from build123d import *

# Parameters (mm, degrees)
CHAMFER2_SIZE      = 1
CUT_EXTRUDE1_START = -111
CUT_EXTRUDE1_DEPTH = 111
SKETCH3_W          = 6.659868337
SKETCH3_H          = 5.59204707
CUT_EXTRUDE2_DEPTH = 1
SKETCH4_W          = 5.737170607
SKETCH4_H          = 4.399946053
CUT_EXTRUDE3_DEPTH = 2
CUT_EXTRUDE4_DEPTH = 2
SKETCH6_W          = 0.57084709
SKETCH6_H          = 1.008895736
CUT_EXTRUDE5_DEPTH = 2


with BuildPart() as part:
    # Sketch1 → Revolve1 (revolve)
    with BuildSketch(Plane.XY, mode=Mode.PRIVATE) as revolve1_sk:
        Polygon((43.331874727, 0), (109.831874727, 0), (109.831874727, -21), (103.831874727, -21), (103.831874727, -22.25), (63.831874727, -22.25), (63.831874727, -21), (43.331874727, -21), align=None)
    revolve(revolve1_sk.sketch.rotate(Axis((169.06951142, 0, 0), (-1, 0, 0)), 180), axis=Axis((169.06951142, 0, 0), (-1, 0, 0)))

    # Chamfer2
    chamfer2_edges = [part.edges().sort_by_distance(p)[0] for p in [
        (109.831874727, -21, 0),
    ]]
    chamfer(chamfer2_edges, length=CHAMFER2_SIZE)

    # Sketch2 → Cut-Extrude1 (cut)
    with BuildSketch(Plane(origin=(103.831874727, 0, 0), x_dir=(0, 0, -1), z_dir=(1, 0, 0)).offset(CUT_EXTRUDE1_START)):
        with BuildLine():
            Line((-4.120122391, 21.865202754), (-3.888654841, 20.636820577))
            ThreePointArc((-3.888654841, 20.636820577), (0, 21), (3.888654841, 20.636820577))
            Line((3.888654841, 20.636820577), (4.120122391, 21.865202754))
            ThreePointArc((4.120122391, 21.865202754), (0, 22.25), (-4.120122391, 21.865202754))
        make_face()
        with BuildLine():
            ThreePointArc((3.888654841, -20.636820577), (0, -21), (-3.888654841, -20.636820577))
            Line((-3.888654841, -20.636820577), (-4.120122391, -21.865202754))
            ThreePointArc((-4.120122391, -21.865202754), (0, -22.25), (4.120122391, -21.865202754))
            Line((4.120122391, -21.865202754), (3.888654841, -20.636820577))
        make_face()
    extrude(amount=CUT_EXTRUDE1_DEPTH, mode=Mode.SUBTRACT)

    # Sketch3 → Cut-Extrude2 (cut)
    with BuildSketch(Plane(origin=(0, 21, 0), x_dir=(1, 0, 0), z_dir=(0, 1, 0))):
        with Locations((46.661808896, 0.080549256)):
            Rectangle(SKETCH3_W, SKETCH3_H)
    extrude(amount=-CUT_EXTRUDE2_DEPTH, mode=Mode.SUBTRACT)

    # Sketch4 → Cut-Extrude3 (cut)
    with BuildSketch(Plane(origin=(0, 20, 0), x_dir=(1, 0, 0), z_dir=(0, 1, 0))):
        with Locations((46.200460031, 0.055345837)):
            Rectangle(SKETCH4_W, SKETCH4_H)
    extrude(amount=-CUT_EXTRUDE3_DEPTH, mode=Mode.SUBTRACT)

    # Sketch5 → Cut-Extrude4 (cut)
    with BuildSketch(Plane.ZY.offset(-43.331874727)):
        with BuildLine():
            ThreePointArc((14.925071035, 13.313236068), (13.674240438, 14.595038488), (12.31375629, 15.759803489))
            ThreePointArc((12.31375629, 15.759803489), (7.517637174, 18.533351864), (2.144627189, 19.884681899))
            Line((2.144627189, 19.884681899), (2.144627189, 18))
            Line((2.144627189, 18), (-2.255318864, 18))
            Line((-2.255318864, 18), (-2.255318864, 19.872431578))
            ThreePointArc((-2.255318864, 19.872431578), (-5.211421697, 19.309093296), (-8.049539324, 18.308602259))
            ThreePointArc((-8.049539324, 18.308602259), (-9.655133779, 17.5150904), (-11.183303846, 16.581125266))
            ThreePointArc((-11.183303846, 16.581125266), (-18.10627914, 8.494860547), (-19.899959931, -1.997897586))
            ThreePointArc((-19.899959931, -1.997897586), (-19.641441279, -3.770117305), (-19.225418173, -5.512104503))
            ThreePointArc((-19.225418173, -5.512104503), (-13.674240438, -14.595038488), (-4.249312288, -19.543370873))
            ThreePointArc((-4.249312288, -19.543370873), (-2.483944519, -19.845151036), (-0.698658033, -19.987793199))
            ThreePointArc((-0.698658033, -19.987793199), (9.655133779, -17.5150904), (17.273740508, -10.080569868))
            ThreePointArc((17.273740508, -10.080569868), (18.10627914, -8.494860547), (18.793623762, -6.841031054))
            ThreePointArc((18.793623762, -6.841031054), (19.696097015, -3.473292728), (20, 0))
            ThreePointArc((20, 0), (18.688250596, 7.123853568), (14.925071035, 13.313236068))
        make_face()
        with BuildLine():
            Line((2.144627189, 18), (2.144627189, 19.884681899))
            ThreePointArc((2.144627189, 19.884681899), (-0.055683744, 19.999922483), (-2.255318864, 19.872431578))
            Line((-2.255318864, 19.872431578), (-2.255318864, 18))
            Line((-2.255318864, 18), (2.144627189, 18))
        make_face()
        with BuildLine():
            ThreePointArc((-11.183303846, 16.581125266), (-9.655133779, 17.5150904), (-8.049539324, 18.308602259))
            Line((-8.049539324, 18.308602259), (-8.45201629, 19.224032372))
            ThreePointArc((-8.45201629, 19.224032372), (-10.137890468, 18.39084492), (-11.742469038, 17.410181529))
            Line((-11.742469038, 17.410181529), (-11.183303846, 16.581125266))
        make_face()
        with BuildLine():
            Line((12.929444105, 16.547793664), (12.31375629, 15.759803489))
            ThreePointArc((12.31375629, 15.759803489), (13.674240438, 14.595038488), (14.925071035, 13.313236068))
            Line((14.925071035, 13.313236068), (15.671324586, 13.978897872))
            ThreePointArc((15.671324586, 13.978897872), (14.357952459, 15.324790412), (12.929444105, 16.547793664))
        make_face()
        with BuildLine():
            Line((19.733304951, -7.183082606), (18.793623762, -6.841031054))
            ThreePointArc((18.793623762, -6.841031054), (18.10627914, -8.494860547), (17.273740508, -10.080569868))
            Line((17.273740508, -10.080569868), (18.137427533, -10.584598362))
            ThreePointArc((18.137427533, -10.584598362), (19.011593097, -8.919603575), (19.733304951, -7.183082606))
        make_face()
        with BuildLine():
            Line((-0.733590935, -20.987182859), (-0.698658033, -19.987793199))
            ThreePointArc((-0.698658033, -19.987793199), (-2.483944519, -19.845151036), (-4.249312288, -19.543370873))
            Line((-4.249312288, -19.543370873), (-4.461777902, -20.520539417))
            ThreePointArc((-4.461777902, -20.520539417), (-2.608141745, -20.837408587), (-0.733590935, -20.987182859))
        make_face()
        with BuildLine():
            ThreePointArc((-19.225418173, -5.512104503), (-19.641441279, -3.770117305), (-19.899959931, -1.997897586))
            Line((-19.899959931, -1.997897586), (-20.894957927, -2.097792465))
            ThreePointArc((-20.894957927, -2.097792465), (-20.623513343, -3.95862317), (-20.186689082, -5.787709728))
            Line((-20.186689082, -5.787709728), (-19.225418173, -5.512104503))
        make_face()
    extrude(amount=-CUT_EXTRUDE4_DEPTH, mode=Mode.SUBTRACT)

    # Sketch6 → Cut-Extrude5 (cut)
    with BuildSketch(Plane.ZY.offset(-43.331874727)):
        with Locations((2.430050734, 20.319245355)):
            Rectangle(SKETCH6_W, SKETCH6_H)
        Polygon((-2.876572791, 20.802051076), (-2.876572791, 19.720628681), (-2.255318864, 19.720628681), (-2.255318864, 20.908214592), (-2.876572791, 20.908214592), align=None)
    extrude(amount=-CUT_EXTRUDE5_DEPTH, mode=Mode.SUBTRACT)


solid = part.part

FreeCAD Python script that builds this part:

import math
import FreeCAD as App
import Part
import Sketcher

V = App.Vector


def edges_at(feature, points):
    """Names of the edges that pass closest to the given points."""
    edges = feature.Shape.Edges
    near = lambda p: min(range(len(edges)), key=lambda i: edges[i].distToShape(Part.Vertex(*p))[0])
    return sorted({f"Edge{near(p) + 1}" for p in points})

doc = App.newDocument("Part")
body = doc.addObject("PartDesign::Body", "Body")

# Sketch on XY plane
sketch1 = body.newObject("Sketcher::SketchObject", "Sketch")
sketch1.AttachmentSupport = (doc.getObject("XY_Plane"), [""])
sketch1.MapMode = "FlatFace"
sketch1.addGeometry(Part.LineSegment(V(109.8, 0, 0), V(43.3, 0, 0)), False)
sketch1.addGeometry(Part.LineSegment(V(43.3, 0, 0), V(43.3, -21, 0)), False)
sketch1.addGeometry(Part.LineSegment(V(43.3, -21, 0), V(63.8, -21, 0)), False)
sketch1.addGeometry(Part.LineSegment(V(63.8, -21, 0), V(63.8, -22.2, 0)), False)
sketch1.addGeometry(Part.LineSegment(V(63.8, -22.2, 0), V(103.8, -22.2, 0)), False)
sketch1.addGeometry(Part.LineSegment(V(103.8, -22.2, 0), V(103.8, -21, 0)), False)
sketch1.addGeometry(Part.LineSegment(V(103.8, -21, 0), V(109.8, -21, 0)), False)
sketch1.addGeometry(Part.LineSegment(V(109.8, -21, 0), V(109.8, 0, 0)), False)
sketch1.addConstraint(Sketcher.Constraint("Coincident", 0, 2, 1, 1))
sketch1.addConstraint(Sketcher.Constraint("Coincident", 1, 2, 2, 1))
sketch1.addConstraint(Sketcher.Constraint("Coincident", 2, 2, 3, 1))
sketch1.addConstraint(Sketcher.Constraint("Coincident", 3, 2, 4, 1))
sketch1.addConstraint(Sketcher.Constraint("Coincident", 4, 2, 5, 1))
sketch1.addConstraint(Sketcher.Constraint("Coincident", 5, 2, 6, 1))
sketch1.addConstraint(Sketcher.Constraint("Coincident", 6, 2, 7, 1))
sketch1.addConstraint(Sketcher.Constraint("Coincident", 7, 2, 0, 1))
sketch1.addConstraint(Sketcher.Constraint("Horizontal", 0))
sketch1.addConstraint(Sketcher.Constraint("Vertical", 1))
sketch1.addConstraint(Sketcher.Constraint("Horizontal", 2))
sketch1.addConstraint(Sketcher.Constraint("Vertical", 3))
sketch1.addConstraint(Sketcher.Constraint("Horizontal", 4))
sketch1.addConstraint(Sketcher.Constraint("Vertical", 5))
sketch1.addConstraint(Sketcher.Constraint("Horizontal", 6))
sketch1.addConstraint(Sketcher.Constraint("Vertical", 7))
sketch1.addConstraint(Sketcher.Constraint("PointOnObject", 0, 2, -1))
sketch1.addConstraint(Sketcher.Constraint("Horizontal", 2, 2, 5, 2))
sketch1.addConstraint(Sketcher.Constraint("DistanceX", 4, 1, 4, 2, 40.0))
sketch1.addConstraint(Sketcher.Constraint("DistanceX", 6, 1, 6, 2, 6.0))
sketch1.addConstraint(Sketcher.Constraint("DistanceY", 1, 2, 1, 1, 21.0))
sketch1.addConstraint(Sketcher.Constraint("DistanceX", 0, 2, 0, 1, 66.5))
sketch1.addConstraint(Sketcher.Constraint("DistanceY", 3, 2, 3, 1, 1.25))
sketch1.addConstraint(Sketcher.Constraint("DistanceX", -1, 1, 0, 2, 43.331875))
revolution = body.newObject("PartDesign::Revolution", "Revolution")
revolution.Profile = sketch1
revolution.ReferenceAxis = (sketch1, ["H_Axis"])
revolution.Angle = 360
doc.recompute()

chamfer = body.newObject("PartDesign::Chamfer", "Chamfer")
chamfer.Base = (revolution, edges_at(revolution, [(109.832, -21, 0)]))
chamfer.Size = 1

# Sketch on YZ plane
sketch2 = body.newObject("Sketcher::SketchObject", "Sketch001")
sketch2.AttachmentSupport = (doc.getObject("YZ_Plane"), [""])
sketch2.MapMode = "FlatFace"
sketch2.AttachmentOffset = App.Placement(V(0, 0, -7.168125), App.Rotation())
sketch2.addGeometry(Part.LineSegment(V(21.9, 4.1, 0), V(20.6, 3.9, 0)), False)
sketch2.addGeometry(Part.ArcOfCircle(Part.Circle(V(0, 0, 0), V(0, 0, 1), 21), math.radians(-11), math.radians(11)), False)
sketch2.addGeometry(Part.LineSegment(V(20.6, -3.9, 0), V(21.9, -4.1, 0)), False)
sketch2.addGeometry(Part.ArcOfCircle(Part.Circle(V(0, 0, 0), V(0, 0, 1), 22.2), math.radians(-11), math.radians(11)), False)
sketch2.addGeometry(Part.ArcOfCircle(Part.Circle(V(0, 0, 0), V(0, 0, 1), 21), math.radians(169), math.radians(191)), False)
sketch2.addGeometry(Part.LineSegment(V(-20.6, 3.9, 0), V(-21.9, 4.1, 0)), False)
sketch2.addGeometry(Part.ArcOfCircle(Part.Circle(V(0, 0, 0), V(0, 0, 1), 22.2), math.radians(169), math.radians(191)), False)
sketch2.addGeometry(Part.LineSegment(V(-21.9, -4.1, 0), V(-20.6, -3.9, 0)), False)
sketch2.addConstraint(Sketcher.Constraint("Coincident", 0, 2, 1, 2))
sketch2.addConstraint(Sketcher.Constraint("Coincident", 1, 1, 2, 1))
sketch2.addConstraint(Sketcher.Constraint("Coincident", 2, 2, 3, 1))
sketch2.addConstraint(Sketcher.Constraint("Coincident", 3, 2, 0, 1))
sketch2.addConstraint(Sketcher.Constraint("Coincident", 4, 1, 5, 1))
sketch2.addConstraint(Sketcher.Constraint("Coincident", 5, 2, 6, 1))
sketch2.addConstraint(Sketcher.Constraint("Coincident", 6, 2, 7, 1))
sketch2.addConstraint(Sketcher.Constraint("Coincident", 7, 2, 4, 2))
sketch2.addConstraint(Sketcher.Constraint("Coincident", 1, 3, -1, 1))
sketch2.addConstraint(Sketcher.Constraint("Coincident", 3, 3, -1, 1))
sketch2.addConstraint(Sketcher.Constraint("Coincident", 4, 3, -1, 1))
sketch2.addConstraint(Sketcher.Constraint("Coincident", 6, 3, -1, 1))
sketch2.addConstraint(Sketcher.Constraint("Equal", 1, 4))
sketch2.addConstraint(Sketcher.Constraint("Equal", 3, 6))
sketch2.addConstraint(Sketcher.Constraint("Parallel", 2, 5))
sketch2.addConstraint(Sketcher.Constraint("Parallel", 0, 7))
sketch2.addConstraint(Sketcher.Constraint("Horizontal", 0, 2, 4, 1))
sketch2.addConstraint(Sketcher.Constraint("Horizontal", 3, 2, 5, 2))
sketch2.addConstraint(Sketcher.Constraint("Horizontal", 2, 2, 6, 2))
sketch2.addConstraint(Sketcher.Constraint("Vertical", 0, 2, 1, 1))
sketch2.addConstraint(Sketcher.Constraint("Radius", 1, 21.0))
sketch2.addConstraint(Sketcher.Constraint("Radius", 3, 22.25))
sketch2.addConstraint(Sketcher.Constraint("DistanceX", -1, 1, 0, 2, 20.636821))
sketch2.addConstraint(Sketcher.Constraint("DistanceX", -1, 1, 2, 2, 21.865203))
pocket1 = body.newObject("PartDesign::Pocket", "Pocket")
pocket1.Profile = sketch2
pocket1.Length = 111
pocket1.Reversed = True

# Sketch on XZ plane
sketch3 = body.newObject("Sketcher::SketchObject", "Sketch002")
sketch3.AttachmentSupport = (doc.getObject("XZ_Plane"), [""])
sketch3.MapMode = "FlatFace"
sketch3.AttachmentOffset = App.Placement(V(0, 0, -21), App.Rotation())
sketch3.addGeometry(Part.LineSegment(V(43, -3, 0), V(43, 3, 0)), False)
sketch3.addGeometry(Part.LineSegment(V(43, 3, 0), V(50, 3, 0)), False)
sketch3.addGeometry(Part.LineSegment(V(50, 3, 0), V(50, -3, 0)), False)
sketch3.addGeometry(Part.LineSegment(V(50, -3, 0), V(43, -3, 0)), False)
sketch3.addConstraint(Sketcher.Constraint("Coincident", 0, 2, 1, 1))
sketch3.addConstraint(Sketcher.Constraint("Coincident", 1, 2, 2, 1))
sketch3.addConstraint(Sketcher.Constraint("Coincident", 2, 2, 3, 1))
sketch3.addConstraint(Sketcher.Constraint("Coincident", 3, 2, 0, 1))
sketch3.addConstraint(Sketcher.Constraint("Vertical", 0))
sketch3.addConstraint(Sketcher.Constraint("Horizontal", 1))
sketch3.addConstraint(Sketcher.Constraint("Vertical", 2))
sketch3.addConstraint(Sketcher.Constraint("Horizontal", 3))
sketch3.addConstraint(Sketcher.Constraint("DistanceX", 1, 1, 1, 2, 6.659868))
sketch3.addConstraint(Sketcher.Constraint("DistanceY", 0, 1, 0, 2, 5.592047))
sketch3.addConstraint(Sketcher.Constraint("DistanceX", -1, 1, 0, 2, 43.331875))
sketch3.addConstraint(Sketcher.Constraint("DistanceY", -1, 1, 0, 2, 2.715474))
pocket2 = body.newObject("PartDesign::Pocket", "Pocket001")
pocket2.Profile = sketch3
pocket2.Length = 1
pocket2.Reversed = True

# Sketch on XZ plane
sketch4 = body.newObject("Sketcher::SketchObject", "Sketch003")
sketch4.AttachmentSupport = (doc.getObject("XZ_Plane"), [""])
sketch4.MapMode = "FlatFace"
sketch4.AttachmentOffset = App.Placement(V(0, 0, -20), App.Rotation())
sketch4.addGeometry(Part.LineSegment(V(43.3, -2.3, 0), V(43.3, 2.1, 0)), False)
sketch4.addGeometry(Part.LineSegment(V(43.3, 2.1, 0), V(49.1, 2.1, 0)), False)
sketch4.addGeometry(Part.LineSegment(V(49.1, 2.1, 0), V(49.1, -2.3, 0)), False)
sketch4.addGeometry(Part.LineSegment(V(49.1, -2.3, 0), V(43.3, -2.3, 0)), False)
sketch4.addConstraint(Sketcher.Constraint("Coincident", 0, 2, 1, 1))
sketch4.addConstraint(Sketcher.Constraint("Coincident", 1, 2, 2, 1))
sketch4.addConstraint(Sketcher.Constraint("Coincident", 2, 2, 3, 1))
sketch4.addConstraint(Sketcher.Constraint("Coincident", 3, 2, 0, 1))
sketch4.addConstraint(Sketcher.Constraint("Vertical", 0))
sketch4.addConstraint(Sketcher.Constraint("Horizontal", 1))
sketch4.addConstraint(Sketcher.Constraint("Vertical", 2))
sketch4.addConstraint(Sketcher.Constraint("Horizontal", 3))
sketch4.addConstraint(Sketcher.Constraint("DistanceX", 1, 1, 1, 2, 5.737171))
sketch4.addConstraint(Sketcher.Constraint("DistanceY", 0, 1, 0, 2, 4.399946))
sketch4.addConstraint(Sketcher.Constraint("DistanceY", 2, 2, -1, 1, 2.255319))
sketch4.addConstraint(Sketcher.Constraint("DistanceX", -1, 1, 0, 2, 43.331875))
pocket3 = body.newObject("PartDesign::Pocket", "Pocket002")
pocket3.Profile = sketch4
pocket3.Length = 2
pocket3.Reversed = True

# Sketch on YZ plane
sketch5 = body.newObject("Sketcher::SketchObject", "Sketch004")
sketch5.AttachmentSupport = (doc.getObject("YZ_Plane"), [""])
sketch5.MapMode = "FlatFace"
sketch5.AttachmentOffset = App.Placement(V(0, 0, 43.331875), App.Rotation())
sketch5.addGeometry(Part.ArcOfCircle(Part.Circle(V(0, 0, 0), V(0, 0, 1), 20), math.radians(6), math.radians(38)), False)
sketch5.addGeometry(Part.ArcOfCircle(Part.Circle(V(0, 0, 0), V(0, 0, 1), 20), math.radians(-6.47), math.radians(6.16)), False)
sketch5.addGeometry(Part.ArcOfCircle(Part.Circle(V(0, 0, 0), V(0, 0, 1), 20), math.radians(-23.73), math.radians(-6.47)), False)
sketch5.addGeometry(Part.LineSegment(V(18.3, -8, 0), V(19.2, -8.5, 0)), False)
sketch5.addGeometry(Part.ArcOfCircle(Part.Circle(V(0, 0, 0), V(0, 0, 1), 21), math.radians(-34), math.radians(-23.73)), False)
sketch5.addGeometry(Part.LineSegment(V(17.4, -11.7, 0), V(16.6, -11.2, 0)), False)
sketch5.addGeometry(Part.ArcOfCircle(Part.Circle(V(0, 0, 0), V(0, 0, 1), 20), math.radians(-96), math.radians(-34)), False)
sketch5.addGeometry(Part.LineSegment(V(-2, -19.9, 0), V(-2.1, -20.9, 0)), False)
sketch5.addGeometry(Part.ArcOfCircle(Part.Circle(V(0, 0, 0), V(0, 0, 1), 21), math.radians(-106), math.radians(-95.73)), False)
sketch5.addGeometry(Part.LineSegment(V(-5.8, -20.2, 0), V(-5.5, -19.2, 0)), False)
sketch5.addGeometry(Part.ArcOfCircle(Part.Circle(V(0, 0, 0), V(0, 0, 1), 20), math.radians(-168), math.radians(-106)), False)
sketch5.addGeometry(Part.LineSegment(V(-19.5, -4.2, 0), V(-20.5, -4.5, 0)), False)
sketch5.addGeometry(Part.ArcOfCircle(Part.Circle(V(0, 0, 0), V(0, 0, 1), 21), math.radians(-178), math.radians(-167.73)), False)
sketch5.addGeometry(Part.LineSegment(V(-21, -0.7, 0), V(-20, -0.7, 0)), False)
sketch5.addGeometry(Part.ArcOfCircle(Part.Circle(V(0, 0, 0), V(0, 0, 1), 20), math.radians(120), math.radians(182)), False)
sketch5.addGeometry(Part.LineSegment(V(-10.1, 17.3, 0), V(-10.6, 18.1, 0)), False)
sketch5.addGeometry(Part.ArcOfCircle(Part.Circle(V(0, 0, 0), V(0, 0, 1), 21), math.radians(110), math.radians(120.27)), False)
sketch5.addGeometry(Part.LineSegment(V(-7.2, 19.7, 0), V(-6.8, 18.8, 0)), False)
sketch5.addGeometry(Part.ArcOfCircle(Part.Circle(V(0, 0, 0), V(0, 0, 1), 20), math.radians(90), math.radians(110)), False)
sketch5.addGeometry(Part.ArcOfCircle(Part.Circle(V(0, 0, 0), V(0, 0, 1), 20), math.radians(48), math.radians(90)), False)
sketch5.addGeometry(Part.LineSegment(V(13.3, 14.9, 0), V(14, 15.7, 0)), False)
sketch5.addGeometry(Part.ArcOfCircle(Part.Circle(V(0, 0, 0), V(0, 0, 1), 21), math.radians(38), math.radians(48.27)), False)
sketch5.addGeometry(Part.LineSegment(V(16.5, 12.9, 0), V(15.8, 12.3, 0)), False)
sketch5.addConstraint(Sketcher.Constraint("Tangent", 0, 1, 1, 2))
sketch5.addConstraint(Sketcher.Constraint("Tangent", 1, 1, 2, 2))
sketch5.addConstraint(Sketcher.Constraint("Coincident", 2, 1, 3, 1))
sketch5.addConstraint(Sketcher.Constraint("Coincident", 3, 2, 4, 2))
sketch5.addConstraint(Sketcher.Constraint("Coincident", 4, 1, 5, 1))
sketch5.addConstraint(Sketcher.Constraint("Coincident", 5, 2, 6, 2))
sketch5.addConstraint(Sketcher.Constraint("Coincident", 6, 1, 7, 1))
sketch5.addConstraint(Sketcher.Constraint("Coincident", 7, 2, 8, 2))
sketch5.addConstraint(Sketcher.Constraint("Coincident", 8, 1, 9, 1))
sketch5.addConstraint(Sketcher.Constraint("Coincident", 9, 2, 10, 2))
sketch5.addConstraint(Sketcher.Constraint("Coincident", 10, 1, 11, 1))
sketch5.addConstraint(Sketcher.Constraint("Coincident", 11, 2, 12, 2))
sketch5.addConstraint(Sketcher.Constraint("Coincident", 12, 1, 13, 1))
sketch5.addConstraint(Sketcher.Constraint("Coincident", 13, 2, 14, 2))
sketch5.addConstraint(Sketcher.Constraint("Coincident", 14, 1, 15, 1))
sketch5.addConstraint(Sketcher.Constraint("Coincident", 15, 2, 16, 2))
sketch5.addConstraint(Sketcher.Constraint("Coincident", 16, 1, 17, 1))
sketch5.addConstraint(Sketcher.Constraint("Coincident", 17, 2, 18, 2))
sketch5.addConstraint(Sketcher.Constraint("Tangent", 18, 1, 19, 2))
sketch5.addConstraint(Sketcher.Constraint("Coincident", 19, 1, 20, 1))
sketch5.addConstraint(Sketcher.Constraint("Coincident", 20, 2, 21, 2))
sketch5.addConstraint(Sketcher.Constraint("Coincident", 21, 1, 22, 1))
sketch5.addConstraint(Sketcher.Constraint("Coincident", 22, 2, 0, 2))
sketch5.addConstraint(Sketcher.Constraint("Coincident", 0, 3, -1, 1))
sketch5.addConstraint(Sketcher.Constraint("Coincident", 2, 3, -1, 1))
sketch5.addConstraint(Sketcher.Constraint("Coincident", 4, 3, -1, 1))
sketch5.addConstraint(Sketcher.Constraint("Coincident", 6, 3, -1, 1))
sketch5.addConstraint(Sketcher.Constraint("Coincident", 8, 3, -1, 1))
sketch5.addConstraint(Sketcher.Constraint("Coincident", 10, 3, -1, 1))
sketch5.addConstraint(Sketcher.Constraint("Coincident", 12, 3, -1, 1))
sketch5.addConstraint(Sketcher.Constraint("Coincident", 14, 3, -1, 1))
sketch5.addConstraint(Sketcher.Constraint("Coincident", 16, 3, -1, 1))
sketch5.addConstraint(Sketcher.Constraint("Coincident", 18, 3, -1, 1))
sketch5.addConstraint(Sketcher.Constraint("Coincident", 21, 3, -1, 1))
sketch5.addConstraint(Sketcher.Constraint("Equal", 2, 6))
sketch5.addConstraint(Sketcher.Constraint("Equal", 4, 8))
sketch5.addConstraint(Sketcher.Constraint("Equal", 6, 10))
sketch5.addConstraint(Sketcher.Constraint("Equal", 8, 12))
sketch5.addConstraint(Sketcher.Constraint("Equal", 10, 14))
sketch5.addConstraint(Sketcher.Constraint("Equal", 12, 16))
sketch5.addConstraint(Sketcher.Constraint("Equal", 14, 18))
sketch5.addConstraint(Sketcher.Constraint("Equal", 18, 19))
sketch5.addConstraint(Sketcher.Constraint("Equal", 16, 21))
sketch5.addConstraint(Sketcher.Constraint("PointOnObject", 18, 1, -2))
sketch5.addConstraint(Sketcher.Constraint("Radius", 0, 20.0))
sketch5.addConstraint(Sketcher.Constraint("Radius", 4, 21.0))
sketch5.addConstraint(Sketcher.Constraint("DistanceX", 15, 2, -1, 1, 10.584598))
sketch5.addConstraint(Sketcher.Constraint("DistanceX", 3, 2, 1, 1, 0.648399))
sketch5.addConstraint(Sketcher.Constraint("DistanceX", 4, 1, 0, 1, 2.4745))
sketch5.addConstraint(Sketcher.Constraint("DistanceX", -1, 1, 0, 1, 19.884682))
sketch5.addConstraint(Sketcher.Constraint("DistanceX", -1, 1, 1, 1, 19.872432))
sketch5.addConstraint(Sketcher.Constraint("DistanceY", 2, 1, -1, 1, 8.049539))
sketch5.addConstraint(Sketcher.Constraint("DistanceY", 6, 1, -1, 1, 19.89996))
sketch5.addConstraint(Sketcher.Constraint("DistanceX", 8, 1, -1, 1, 5.78771))
sketch5.addConstraint(Sketcher.Constraint("DistanceY", 9, 2, -1, 1, 19.225418))
sketch5.addConstraint(Sketcher.Constraint("DistanceX", 10, 1, -1, 1, 19.543371))
sketch5.addConstraint(Sketcher.Constraint("DistanceX", 11, 2, -1, 1, 20.520539))
sketch5.addConstraint(Sketcher.Constraint("DistanceY", 12, 1, -1, 1, 0.733591))
sketch5.addConstraint(Sketcher.Constraint("DistanceY", 13, 2, -1, 1, 0.698658))
sketch5.addConstraint(Sketcher.Constraint("DistanceX", 14, 1, -1, 1, 10.08057))
sketch5.addConstraint(Sketcher.Constraint("DistanceX", 17, 2, -1, 1, 6.841031))
sketch5.addConstraint(Sketcher.Constraint("DistanceY", -1, 1, 19, 1, 14.925071))
sketch5.addConstraint(Sketcher.Constraint("DistanceY", 5, 2, 0, 1, 13.327931))
sketch5.addConstraint(Sketcher.Constraint("DistanceY", 7, 2, 8, 1, 0.708269))
sketch5.addConstraint(Sketcher.Constraint("DistanceX", 16, 1, 17, 2, 0.342052))
sketch5.addConstraint(Sketcher.Constraint("DistanceX", 19, 1, 20, 2, 0.665662))
sketch5.addConstraint(Sketcher.Constraint("DistanceY", 21, 1, 20, 2, 2.74188))
sketch5.addConstraint(Sketcher.Constraint("DistanceX", 22, 2, 21, 1, 0.78799))
pocket4 = body.newObject("PartDesign::Pocket", "Pocket003")
pocket4.Profile = sketch5
pocket4.Length = 2
pocket4.Reversed = True

# Sketch on YZ plane
sketch6 = body.newObject("Sketcher::SketchObject", "Sketch005")
sketch6.AttachmentSupport = (doc.getObject("YZ_Plane"), [""])
sketch6.MapMode = "FlatFace"
sketch6.AttachmentOffset = App.Placement(V(0, 0, 43.331875), App.Rotation())
sketch6.addGeometry(Part.LineSegment(V(20.8, 2.1, 0), V(19.8, 2.1, 0)), False)
sketch6.addGeometry(Part.LineSegment(V(19.8, 2.1, 0), V(19.8, 2.7, 0)), False)
sketch6.addGeometry(Part.LineSegment(V(19.8, 2.7, 0), V(20.8, 2.7, 0)), False)
sketch6.addGeometry(Part.LineSegment(V(20.8, 2.7, 0), V(20.8, 2.1, 0)), False)
sketch6.addGeometry(Part.LineSegment(V(19.7, -2.9, 0), V(19.7, -2.3, 0)), False)
sketch6.addGeometry(Part.LineSegment(V(19.7, -2.3, 0), V(20.9, -2.3, 0)), False)
sketch6.addGeometry(Part.LineSegment(V(20.9, -2.3, 0), V(20.9, -2.9, 0)), False)
sketch6.addGeometry(Part.LineSegment(V(20.9, -2.9, 0), V(19.7, -2.9, 0)), False)
sketch6.addConstraint(Sketcher.Constraint("Coincident", 0, 2, 1, 1))
sketch6.addConstraint(Sketcher.Constraint("Coincident", 1, 2, 2, 1))
sketch6.addConstraint(Sketcher.Constraint("Coincident", 2, 2, 3, 1))
sketch6.addConstraint(Sketcher.Constraint("Coincident", 3, 2, 0, 1))
sketch6.addConstraint(Sketcher.Constraint("Coincident", 4, 2, 5, 1))
sketch6.addConstraint(Sketcher.Constraint("Coincident", 5, 2, 6, 1))
sketch6.addConstraint(Sketcher.Constraint("Coincident", 6, 2, 7, 1))
sketch6.addConstraint(Sketcher.Constraint("Coincident", 7, 2, 4, 1))
sketch6.addConstraint(Sketcher.Constraint("Horizontal", 0))
sketch6.addConstraint(Sketcher.Constraint("Vertical", 1))
sketch6.addConstraint(Sketcher.Constraint("Horizontal", 2))
sketch6.addConstraint(Sketcher.Constraint("Vertical", 3))
sketch6.addConstraint(Sketcher.Constraint("Vertical", 4))
sketch6.addConstraint(Sketcher.Constraint("Horizontal", 5))
sketch6.addConstraint(Sketcher.Constraint("Vertical", 6))
sketch6.addConstraint(Sketcher.Constraint("Horizontal", 7))
sketch6.addConstraint(Sketcher.Constraint("DistanceY", 6, 2, 3, 2, 5.0212))
sketch6.addConstraint(Sketcher.Constraint("DistanceX", 0, 2, 0, 1, 1.008896))
sketch6.addConstraint(Sketcher.Constraint("DistanceX", 5, 1, 5, 2, 1.187586))
sketch6.addConstraint(Sketcher.Constraint("DistanceY", 1, 1, 1, 2, 0.570847))
sketch6.addConstraint(Sketcher.Constraint("DistanceY", 4, 1, 4, 2, 0.621254))
sketch6.addConstraint(Sketcher.Constraint("DistanceX", -1, 1, 4, 2, 19.720629))
sketch6.addConstraint(Sketcher.Constraint("DistanceY", 4, 2, -1, 1, 2.255319))
sketch6.addConstraint(Sketcher.Constraint("DistanceX", 4, 2, 0, 2, 0.094169))
pocket5 = body.newObject("PartDesign::Pocket", "Pocket004")
pocket5.Profile = sketch6
pocket5.Length = 2
pocket5.Reversed = True

doc.recompute()
